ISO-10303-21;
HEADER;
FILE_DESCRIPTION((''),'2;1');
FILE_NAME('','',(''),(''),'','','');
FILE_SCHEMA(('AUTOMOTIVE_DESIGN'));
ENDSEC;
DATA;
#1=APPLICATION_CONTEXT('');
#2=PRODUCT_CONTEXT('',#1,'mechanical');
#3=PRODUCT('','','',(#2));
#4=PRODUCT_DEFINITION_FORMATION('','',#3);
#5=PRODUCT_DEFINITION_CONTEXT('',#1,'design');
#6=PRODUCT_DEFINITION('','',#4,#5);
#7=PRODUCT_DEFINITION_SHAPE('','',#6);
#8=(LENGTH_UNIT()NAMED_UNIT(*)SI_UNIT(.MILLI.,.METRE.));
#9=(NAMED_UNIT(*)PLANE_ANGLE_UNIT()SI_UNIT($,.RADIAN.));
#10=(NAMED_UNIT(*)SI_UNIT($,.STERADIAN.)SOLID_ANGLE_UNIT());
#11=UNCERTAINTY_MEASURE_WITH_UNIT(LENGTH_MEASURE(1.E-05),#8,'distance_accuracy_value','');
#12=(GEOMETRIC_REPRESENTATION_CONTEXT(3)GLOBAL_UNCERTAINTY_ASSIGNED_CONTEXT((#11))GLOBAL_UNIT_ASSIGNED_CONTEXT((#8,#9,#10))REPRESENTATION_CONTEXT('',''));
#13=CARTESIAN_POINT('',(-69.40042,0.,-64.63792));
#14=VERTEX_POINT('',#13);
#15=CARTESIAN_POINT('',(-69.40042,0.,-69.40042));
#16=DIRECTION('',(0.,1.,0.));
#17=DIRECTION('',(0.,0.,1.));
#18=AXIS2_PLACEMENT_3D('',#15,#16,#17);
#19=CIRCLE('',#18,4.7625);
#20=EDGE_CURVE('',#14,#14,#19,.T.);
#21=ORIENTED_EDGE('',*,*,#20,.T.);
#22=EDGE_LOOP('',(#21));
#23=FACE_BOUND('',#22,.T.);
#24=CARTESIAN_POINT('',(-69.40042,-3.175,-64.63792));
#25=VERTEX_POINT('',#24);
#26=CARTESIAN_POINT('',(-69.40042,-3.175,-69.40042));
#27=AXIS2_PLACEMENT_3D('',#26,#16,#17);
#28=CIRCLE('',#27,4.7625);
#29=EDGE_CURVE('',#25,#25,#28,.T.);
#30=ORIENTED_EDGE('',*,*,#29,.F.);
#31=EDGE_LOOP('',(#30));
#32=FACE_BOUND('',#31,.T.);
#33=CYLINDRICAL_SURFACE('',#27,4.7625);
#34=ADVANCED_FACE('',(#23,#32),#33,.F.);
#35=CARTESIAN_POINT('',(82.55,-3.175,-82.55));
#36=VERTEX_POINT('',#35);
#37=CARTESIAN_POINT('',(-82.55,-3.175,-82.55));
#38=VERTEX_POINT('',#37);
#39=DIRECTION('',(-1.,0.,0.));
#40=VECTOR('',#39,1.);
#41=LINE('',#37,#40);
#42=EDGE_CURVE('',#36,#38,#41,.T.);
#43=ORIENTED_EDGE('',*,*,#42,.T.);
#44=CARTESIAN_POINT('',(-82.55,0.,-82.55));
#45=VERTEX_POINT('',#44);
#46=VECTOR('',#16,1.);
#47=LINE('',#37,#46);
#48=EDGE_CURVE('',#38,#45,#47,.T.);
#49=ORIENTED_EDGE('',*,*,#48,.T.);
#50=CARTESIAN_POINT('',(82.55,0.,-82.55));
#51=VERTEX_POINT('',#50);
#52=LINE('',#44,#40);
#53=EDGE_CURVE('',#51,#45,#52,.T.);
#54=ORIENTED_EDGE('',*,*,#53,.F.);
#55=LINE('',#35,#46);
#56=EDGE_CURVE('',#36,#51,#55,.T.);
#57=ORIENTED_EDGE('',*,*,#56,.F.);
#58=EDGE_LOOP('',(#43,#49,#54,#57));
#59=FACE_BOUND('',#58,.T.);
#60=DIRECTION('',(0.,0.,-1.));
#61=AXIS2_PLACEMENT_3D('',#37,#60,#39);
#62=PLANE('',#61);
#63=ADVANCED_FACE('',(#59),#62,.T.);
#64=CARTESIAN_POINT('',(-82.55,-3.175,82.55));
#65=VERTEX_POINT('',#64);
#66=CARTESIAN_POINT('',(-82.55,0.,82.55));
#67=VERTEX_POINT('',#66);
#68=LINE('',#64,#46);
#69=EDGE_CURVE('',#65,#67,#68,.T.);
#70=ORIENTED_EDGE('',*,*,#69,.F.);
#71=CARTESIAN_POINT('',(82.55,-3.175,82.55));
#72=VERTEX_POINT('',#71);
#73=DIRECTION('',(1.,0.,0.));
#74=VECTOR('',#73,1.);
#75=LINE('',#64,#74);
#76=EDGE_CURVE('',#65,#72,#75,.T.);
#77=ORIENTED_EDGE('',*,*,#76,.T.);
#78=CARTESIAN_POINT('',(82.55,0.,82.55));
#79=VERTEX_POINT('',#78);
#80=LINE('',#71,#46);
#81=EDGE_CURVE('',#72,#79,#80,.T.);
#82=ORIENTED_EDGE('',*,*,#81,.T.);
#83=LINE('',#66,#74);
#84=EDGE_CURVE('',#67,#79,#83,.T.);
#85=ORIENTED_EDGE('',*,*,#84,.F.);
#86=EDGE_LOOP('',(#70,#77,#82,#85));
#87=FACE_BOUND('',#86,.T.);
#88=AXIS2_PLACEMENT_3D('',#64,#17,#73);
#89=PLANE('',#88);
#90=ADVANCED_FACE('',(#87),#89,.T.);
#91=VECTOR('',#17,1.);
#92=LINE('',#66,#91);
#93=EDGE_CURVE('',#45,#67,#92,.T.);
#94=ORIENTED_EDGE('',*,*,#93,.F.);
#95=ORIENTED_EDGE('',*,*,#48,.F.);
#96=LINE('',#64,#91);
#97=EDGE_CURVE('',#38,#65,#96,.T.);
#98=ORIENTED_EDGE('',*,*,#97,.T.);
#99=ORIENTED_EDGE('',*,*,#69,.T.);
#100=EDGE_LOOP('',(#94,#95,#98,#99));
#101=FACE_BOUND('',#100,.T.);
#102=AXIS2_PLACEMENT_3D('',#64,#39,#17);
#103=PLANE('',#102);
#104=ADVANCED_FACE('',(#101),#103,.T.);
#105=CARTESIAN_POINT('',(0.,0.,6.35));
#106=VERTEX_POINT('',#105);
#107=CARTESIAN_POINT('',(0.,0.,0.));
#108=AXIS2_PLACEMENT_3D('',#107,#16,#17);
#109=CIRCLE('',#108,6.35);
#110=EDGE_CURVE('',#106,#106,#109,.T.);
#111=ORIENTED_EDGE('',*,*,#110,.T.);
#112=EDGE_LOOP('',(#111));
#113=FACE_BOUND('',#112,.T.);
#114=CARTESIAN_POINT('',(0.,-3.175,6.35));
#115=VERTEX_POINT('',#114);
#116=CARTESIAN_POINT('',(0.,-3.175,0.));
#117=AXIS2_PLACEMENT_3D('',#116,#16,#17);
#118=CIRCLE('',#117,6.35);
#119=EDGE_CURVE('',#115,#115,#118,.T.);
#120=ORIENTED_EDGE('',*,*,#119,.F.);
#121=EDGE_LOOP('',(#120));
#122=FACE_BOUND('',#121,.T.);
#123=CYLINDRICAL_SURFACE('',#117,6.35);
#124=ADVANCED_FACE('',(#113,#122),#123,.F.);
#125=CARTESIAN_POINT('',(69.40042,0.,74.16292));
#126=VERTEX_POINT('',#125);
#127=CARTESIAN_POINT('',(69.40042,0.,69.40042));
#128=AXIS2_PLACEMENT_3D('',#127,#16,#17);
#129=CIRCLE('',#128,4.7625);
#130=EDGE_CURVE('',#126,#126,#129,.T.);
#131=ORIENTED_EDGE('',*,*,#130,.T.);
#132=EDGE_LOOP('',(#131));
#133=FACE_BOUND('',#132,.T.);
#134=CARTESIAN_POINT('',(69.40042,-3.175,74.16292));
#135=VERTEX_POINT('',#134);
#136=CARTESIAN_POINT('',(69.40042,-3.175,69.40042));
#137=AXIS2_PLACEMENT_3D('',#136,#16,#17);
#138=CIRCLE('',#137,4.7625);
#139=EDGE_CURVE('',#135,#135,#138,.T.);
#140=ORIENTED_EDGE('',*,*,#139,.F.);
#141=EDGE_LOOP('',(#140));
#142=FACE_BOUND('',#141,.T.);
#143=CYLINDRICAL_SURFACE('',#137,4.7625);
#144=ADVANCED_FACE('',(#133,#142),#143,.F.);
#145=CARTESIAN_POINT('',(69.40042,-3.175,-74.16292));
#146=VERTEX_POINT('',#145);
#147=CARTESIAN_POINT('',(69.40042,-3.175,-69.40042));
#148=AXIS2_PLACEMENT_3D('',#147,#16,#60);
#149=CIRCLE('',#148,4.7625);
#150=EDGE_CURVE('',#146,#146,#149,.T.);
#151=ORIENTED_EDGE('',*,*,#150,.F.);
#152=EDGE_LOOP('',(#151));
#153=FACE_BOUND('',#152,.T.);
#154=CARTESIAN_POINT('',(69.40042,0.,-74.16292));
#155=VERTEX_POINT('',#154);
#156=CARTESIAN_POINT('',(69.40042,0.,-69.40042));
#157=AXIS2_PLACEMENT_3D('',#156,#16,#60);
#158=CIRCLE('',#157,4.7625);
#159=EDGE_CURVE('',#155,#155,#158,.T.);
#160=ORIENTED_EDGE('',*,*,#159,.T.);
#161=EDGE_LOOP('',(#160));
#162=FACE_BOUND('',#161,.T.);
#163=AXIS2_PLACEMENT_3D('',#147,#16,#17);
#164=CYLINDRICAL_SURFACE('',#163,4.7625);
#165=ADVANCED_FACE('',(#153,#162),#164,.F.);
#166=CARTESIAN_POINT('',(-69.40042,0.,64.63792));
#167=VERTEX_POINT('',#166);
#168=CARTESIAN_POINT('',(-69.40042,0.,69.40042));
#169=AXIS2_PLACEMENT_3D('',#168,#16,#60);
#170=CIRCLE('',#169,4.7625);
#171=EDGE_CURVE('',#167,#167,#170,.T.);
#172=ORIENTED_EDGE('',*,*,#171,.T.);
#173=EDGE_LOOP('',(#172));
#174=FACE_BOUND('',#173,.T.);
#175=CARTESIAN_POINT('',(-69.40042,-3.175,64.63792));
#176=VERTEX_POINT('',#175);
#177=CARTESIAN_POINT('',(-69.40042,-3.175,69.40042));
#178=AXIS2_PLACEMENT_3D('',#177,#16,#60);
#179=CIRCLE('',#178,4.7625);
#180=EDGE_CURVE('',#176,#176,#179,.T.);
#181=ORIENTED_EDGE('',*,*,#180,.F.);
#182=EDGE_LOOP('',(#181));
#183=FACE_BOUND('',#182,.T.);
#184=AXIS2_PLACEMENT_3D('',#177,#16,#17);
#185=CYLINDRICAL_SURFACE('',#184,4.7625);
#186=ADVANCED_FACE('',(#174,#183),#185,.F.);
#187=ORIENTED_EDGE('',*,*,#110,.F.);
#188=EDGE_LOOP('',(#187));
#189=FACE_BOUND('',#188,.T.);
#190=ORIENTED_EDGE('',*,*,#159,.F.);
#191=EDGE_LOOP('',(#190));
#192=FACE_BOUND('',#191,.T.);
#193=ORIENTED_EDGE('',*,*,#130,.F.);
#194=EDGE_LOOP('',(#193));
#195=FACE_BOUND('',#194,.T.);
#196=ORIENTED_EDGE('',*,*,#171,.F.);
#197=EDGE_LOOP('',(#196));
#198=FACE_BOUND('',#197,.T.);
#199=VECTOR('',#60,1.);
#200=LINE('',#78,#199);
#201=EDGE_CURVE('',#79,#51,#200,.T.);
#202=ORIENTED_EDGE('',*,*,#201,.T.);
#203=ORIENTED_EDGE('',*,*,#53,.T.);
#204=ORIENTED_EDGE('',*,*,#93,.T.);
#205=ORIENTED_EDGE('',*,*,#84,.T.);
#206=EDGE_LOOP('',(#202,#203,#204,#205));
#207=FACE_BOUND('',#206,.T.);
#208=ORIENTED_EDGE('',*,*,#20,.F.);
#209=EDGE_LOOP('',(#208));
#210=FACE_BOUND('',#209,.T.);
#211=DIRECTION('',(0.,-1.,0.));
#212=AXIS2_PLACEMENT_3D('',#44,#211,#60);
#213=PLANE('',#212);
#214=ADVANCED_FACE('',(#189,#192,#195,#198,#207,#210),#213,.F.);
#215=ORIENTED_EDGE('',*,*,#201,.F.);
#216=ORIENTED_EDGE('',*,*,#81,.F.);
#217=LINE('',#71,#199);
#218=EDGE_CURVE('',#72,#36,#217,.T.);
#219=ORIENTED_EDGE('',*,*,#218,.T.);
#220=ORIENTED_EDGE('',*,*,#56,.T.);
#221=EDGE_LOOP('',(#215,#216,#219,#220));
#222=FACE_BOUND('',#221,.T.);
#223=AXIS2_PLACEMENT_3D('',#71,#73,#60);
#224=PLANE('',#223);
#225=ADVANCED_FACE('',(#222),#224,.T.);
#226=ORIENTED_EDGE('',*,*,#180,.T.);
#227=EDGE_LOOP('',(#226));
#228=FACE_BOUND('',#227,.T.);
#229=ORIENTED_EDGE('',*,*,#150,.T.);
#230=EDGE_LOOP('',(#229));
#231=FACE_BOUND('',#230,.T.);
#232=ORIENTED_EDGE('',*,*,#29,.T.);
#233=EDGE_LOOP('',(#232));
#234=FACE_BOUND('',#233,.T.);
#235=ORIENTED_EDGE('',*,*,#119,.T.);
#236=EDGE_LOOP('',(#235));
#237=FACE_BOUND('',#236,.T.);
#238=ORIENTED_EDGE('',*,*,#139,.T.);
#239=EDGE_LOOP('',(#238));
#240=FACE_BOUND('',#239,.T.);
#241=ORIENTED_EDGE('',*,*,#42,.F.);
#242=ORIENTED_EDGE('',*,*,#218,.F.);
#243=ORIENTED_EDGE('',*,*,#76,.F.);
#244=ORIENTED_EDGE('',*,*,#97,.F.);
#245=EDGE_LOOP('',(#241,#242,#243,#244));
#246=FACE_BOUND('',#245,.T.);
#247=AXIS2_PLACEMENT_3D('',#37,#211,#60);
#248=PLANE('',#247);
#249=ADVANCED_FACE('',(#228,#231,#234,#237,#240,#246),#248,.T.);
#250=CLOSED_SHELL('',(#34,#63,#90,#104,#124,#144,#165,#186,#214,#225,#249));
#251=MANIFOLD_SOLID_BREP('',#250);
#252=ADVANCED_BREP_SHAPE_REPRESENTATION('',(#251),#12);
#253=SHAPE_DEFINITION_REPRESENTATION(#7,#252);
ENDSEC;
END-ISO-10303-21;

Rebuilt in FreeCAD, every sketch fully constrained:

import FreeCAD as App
import Part
import Sketcher
Q = App.Units.Quantity


def add_polygon(sketch, points):
    """Adds a closed chain of lines whose ends are joined by coincident constraints."""
    first, n = sketch.GeometryCount, len(points)
    for a, b in zip(points, points[1:] + points[:1]):
        sketch.addGeometry(Part.LineSegment(App.Vector(*a, 0), App.Vector(*b, 0)), False)
    for i in range(n):
        sketch.addConstraint(Sketcher.Constraint("Coincident", first + i, 2, first + (i + 1) % n, 1))

doc = App.newDocument("Part")
body = doc.addObject("PartDesign::Body", "Body")

# Sketch on XZ plane
sketch1 = body.newObject("Sketcher::SketchObject", "Sketch")
sketch1.AttachmentSupport = (doc.getObject("XZ_Plane"), [""])
sketch1.MapMode = "FlatFace"
add_polygon(sketch1, [(-82.5, -82.5), (-82.5, 82.5), (82.5, 82.5), (82.5, -82.5)])  # lines 0-3
sketch1.addGeometry(Part.Circle(App.Vector(-69.4, 69.4, 0), App.Vector(0, 0, 1), 4.8), False)  # 4
sketch1.addGeometry(Part.Circle(App.Vector(0, 0, 0), App.Vector(0, 0, 1), 6.3), False)  # 5
sketch1.addGeometry(Part.Circle(App.Vector(69.4, 69.4, 0), App.Vector(0, 0, 1), 4.8), False)  # 6
sketch1.addGeometry(Part.Circle(App.Vector(-69.4, -69.4, 0), App.Vector(0, 0, 1), 4.8), False)  # 7
sketch1.addGeometry(Part.Circle(App.Vector(69.4, -69.4, 0), App.Vector(0, 0, 1), 4.8), False)  # 8
sketch1.addConstraint(Sketcher.Constraint("Vertical", 0))
sketch1.addConstraint(Sketcher.Constraint("Horizontal", 1))
sketch1.addConstraint(Sketcher.Constraint("Vertical", 2))
sketch1.addConstraint(Sketcher.Constraint("Horizontal", 3))
sketch1.addConstraint(Sketcher.Constraint("Coincident", 5, 3, -1, 1))
sketch1.addConstraint(Sketcher.Constraint("Equal", 4, 6))
sketch1.addConstraint(Sketcher.Constraint("Equal", 6, 7))
sketch1.addConstraint(Sketcher.Constraint("Equal", 7, 8))
sketch1.addConstraint(Sketcher.Constraint("Symmetric", 6, 3, 7, 3, -1, 1))
sketch1.addConstraint(Sketcher.Constraint("Symmetric", 4, 3, 8, 3, -1, 1))
sketch1.addConstraint(Sketcher.Constraint("Symmetric", 0, 2, 2, 2, -1, 1))
sketch1.addConstraint(Sketcher.Constraint("Symmetric", 4, 3, 6, 3, -2))
sketch1.addConstraint(Sketcher.Constraint("Equal", 3, 0))
sketch1.addConstraint(Sketcher.Constraint("Diameter", 5, Q("0.5 in")))
sketch1.addConstraint(Sketcher.Constraint("Diameter", 4, Q("0.375 in")))
sketch1.addConstraint(Sketcher.Constraint("DistanceX", 1, 1, 1, 2, Q("6.5 in")))
sketch1.addConstraint(Sketcher.Constraint("DistanceX", 4, 3, -1, 1, Q("2.7323 in")))
sketch1.addConstraint(Sketcher.Constraint("DistanceY", -1, 1, 4, 3, Q("2.7323 in")))
pad1 = body.newObject("PartDesign::Pad", "Pad")
pad1.Profile = sketch1
pad1.Length = Q("0.125 in")

doc.recompute()
